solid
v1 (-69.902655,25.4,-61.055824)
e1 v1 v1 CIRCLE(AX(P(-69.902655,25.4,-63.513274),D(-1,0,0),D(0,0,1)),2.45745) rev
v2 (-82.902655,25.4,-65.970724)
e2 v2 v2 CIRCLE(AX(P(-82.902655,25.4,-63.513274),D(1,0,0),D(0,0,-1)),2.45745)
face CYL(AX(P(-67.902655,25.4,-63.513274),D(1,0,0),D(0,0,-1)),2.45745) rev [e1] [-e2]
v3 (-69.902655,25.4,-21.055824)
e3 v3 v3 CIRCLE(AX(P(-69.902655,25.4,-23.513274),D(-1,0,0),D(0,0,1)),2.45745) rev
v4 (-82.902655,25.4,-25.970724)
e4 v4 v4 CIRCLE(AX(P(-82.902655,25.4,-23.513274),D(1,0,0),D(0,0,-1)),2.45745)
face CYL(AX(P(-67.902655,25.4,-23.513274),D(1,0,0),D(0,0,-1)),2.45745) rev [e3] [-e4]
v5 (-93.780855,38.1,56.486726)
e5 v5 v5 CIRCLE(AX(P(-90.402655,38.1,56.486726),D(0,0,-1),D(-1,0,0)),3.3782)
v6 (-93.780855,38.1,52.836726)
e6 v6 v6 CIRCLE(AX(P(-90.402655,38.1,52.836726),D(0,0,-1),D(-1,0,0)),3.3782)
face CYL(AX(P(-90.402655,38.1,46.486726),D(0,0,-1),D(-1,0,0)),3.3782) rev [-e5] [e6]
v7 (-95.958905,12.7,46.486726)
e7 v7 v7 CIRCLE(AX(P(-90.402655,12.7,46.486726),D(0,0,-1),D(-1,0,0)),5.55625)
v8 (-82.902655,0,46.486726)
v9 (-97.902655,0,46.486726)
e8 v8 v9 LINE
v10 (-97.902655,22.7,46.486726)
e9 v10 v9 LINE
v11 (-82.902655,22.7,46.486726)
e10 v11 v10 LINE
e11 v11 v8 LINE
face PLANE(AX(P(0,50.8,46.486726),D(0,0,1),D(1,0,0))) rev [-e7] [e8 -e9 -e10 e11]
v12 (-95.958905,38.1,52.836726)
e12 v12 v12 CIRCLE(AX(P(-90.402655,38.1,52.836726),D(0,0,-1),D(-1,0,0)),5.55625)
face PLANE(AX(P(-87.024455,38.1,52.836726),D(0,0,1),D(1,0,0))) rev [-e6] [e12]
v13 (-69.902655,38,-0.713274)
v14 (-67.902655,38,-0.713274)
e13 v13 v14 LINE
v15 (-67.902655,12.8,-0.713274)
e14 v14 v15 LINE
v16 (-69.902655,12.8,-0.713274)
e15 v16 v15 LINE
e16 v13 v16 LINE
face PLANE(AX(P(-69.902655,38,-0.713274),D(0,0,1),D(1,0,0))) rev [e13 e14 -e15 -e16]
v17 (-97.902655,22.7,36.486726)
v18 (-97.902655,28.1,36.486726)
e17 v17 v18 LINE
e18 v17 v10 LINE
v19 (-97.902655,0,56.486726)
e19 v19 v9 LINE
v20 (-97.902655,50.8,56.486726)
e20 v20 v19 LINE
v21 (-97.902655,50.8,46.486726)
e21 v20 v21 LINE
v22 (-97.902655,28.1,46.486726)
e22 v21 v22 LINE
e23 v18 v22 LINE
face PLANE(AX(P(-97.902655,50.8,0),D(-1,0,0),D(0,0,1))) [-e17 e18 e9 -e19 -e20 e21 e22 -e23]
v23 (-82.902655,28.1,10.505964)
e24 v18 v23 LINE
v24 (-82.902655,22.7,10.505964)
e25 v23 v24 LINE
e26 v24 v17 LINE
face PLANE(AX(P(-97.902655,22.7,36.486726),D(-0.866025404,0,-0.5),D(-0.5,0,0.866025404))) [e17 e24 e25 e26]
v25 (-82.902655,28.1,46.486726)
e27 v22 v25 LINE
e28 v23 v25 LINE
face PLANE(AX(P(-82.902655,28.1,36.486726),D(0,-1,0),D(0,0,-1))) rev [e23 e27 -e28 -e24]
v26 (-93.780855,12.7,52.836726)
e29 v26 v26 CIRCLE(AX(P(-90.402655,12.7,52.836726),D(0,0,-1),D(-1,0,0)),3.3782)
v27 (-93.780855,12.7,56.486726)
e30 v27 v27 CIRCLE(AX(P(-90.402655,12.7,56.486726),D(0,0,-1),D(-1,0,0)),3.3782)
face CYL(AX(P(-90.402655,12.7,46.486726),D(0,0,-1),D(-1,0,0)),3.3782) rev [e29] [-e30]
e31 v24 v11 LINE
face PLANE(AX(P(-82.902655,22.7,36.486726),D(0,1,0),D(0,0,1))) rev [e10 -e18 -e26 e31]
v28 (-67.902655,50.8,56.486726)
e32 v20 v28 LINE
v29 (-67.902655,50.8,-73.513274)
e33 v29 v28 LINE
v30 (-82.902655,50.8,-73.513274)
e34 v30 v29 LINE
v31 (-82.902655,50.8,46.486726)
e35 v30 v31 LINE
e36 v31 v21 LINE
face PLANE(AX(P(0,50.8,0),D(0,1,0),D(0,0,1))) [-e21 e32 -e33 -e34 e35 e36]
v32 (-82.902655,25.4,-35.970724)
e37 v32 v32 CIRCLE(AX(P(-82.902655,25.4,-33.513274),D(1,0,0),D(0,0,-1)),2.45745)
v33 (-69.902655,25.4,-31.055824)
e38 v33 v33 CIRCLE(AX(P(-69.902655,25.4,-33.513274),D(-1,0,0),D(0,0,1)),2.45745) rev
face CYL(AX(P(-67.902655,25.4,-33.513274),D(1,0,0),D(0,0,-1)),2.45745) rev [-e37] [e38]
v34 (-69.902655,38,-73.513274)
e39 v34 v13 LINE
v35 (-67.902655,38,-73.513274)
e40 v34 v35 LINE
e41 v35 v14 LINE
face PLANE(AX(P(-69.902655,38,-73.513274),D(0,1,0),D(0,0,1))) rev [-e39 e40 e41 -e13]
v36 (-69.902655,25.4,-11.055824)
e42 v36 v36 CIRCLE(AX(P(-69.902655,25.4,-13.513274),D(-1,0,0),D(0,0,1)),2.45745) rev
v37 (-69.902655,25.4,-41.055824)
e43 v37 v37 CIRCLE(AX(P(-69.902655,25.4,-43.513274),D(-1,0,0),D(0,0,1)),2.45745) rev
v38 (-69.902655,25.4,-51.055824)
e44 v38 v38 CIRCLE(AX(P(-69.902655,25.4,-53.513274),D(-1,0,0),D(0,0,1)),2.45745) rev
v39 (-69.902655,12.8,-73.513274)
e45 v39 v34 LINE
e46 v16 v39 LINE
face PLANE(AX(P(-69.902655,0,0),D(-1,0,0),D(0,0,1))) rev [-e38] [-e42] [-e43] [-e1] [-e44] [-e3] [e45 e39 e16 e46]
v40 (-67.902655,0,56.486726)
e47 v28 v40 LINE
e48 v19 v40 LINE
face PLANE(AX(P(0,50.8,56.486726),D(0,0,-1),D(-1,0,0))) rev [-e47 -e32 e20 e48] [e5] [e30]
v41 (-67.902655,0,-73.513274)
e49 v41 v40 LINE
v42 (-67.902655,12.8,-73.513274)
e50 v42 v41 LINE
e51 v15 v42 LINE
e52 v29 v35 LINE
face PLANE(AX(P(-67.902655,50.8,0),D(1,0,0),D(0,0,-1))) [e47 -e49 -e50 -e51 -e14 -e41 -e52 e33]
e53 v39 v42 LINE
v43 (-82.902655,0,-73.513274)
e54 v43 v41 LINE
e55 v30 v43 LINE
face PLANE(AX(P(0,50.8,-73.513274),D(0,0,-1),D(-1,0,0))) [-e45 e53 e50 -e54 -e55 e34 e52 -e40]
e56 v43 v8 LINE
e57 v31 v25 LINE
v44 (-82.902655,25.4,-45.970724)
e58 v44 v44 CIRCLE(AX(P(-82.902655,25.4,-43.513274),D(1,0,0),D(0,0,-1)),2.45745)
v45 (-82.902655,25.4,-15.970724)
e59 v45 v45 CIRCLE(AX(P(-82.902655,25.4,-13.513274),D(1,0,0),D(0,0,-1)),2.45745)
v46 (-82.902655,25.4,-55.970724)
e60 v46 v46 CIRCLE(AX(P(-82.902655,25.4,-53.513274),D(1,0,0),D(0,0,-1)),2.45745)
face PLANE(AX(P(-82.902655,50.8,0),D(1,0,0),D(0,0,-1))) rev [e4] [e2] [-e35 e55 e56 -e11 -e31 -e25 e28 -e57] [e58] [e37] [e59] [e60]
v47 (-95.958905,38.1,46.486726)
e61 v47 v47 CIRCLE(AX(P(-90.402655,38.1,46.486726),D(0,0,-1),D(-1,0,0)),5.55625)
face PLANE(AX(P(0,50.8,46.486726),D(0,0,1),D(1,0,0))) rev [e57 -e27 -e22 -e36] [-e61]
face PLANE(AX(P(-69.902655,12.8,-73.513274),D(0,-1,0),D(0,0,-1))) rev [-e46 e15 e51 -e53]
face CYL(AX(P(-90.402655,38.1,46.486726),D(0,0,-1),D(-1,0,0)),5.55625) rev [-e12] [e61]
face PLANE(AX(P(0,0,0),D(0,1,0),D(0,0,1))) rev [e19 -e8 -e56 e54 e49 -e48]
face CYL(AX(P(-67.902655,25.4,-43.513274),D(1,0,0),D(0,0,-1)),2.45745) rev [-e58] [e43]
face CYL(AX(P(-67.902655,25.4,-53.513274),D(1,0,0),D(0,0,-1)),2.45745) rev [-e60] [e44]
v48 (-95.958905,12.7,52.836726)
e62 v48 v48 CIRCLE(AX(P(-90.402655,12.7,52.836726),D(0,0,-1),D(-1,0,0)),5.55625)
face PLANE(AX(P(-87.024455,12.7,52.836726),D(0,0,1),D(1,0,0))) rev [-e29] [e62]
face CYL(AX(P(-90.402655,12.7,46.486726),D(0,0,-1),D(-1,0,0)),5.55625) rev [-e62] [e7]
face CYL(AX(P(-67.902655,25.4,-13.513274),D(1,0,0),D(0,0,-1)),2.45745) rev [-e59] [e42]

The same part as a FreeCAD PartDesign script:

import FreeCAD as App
import Part
import Sketcher

V = App.Vector
Q = App.Units.Quantity


def faces_at(feature, points):
    """Names of the faces that lie closest to the given points."""
    faces = feature.Shape.Faces
    near = lambda p: min(range(len(faces)), key=lambda i: faces[i].distToShape(Part.Vertex(*p))[0])
    return sorted({f"Face{near(p) + 1}" for p in points})


def add_polygon(sketch, points):
    """Adds a closed chain of lines whose ends are joined by coincident constraints."""
    first, n = sketch.GeometryCount, len(points)
    for a, b in zip(points, points[1:] + points[:1]):
        sketch.addGeometry(Part.LineSegment(App.Vector(*a, 0), App.Vector(*b, 0)), False)
    for i in range(n):
        sketch.addConstraint(Sketcher.Constraint("Coincident", first + i, 2, first + (i + 1) % n, 1))

doc = App.newDocument("Part")
body = doc.addObject("PartDesign::Body", "Body")

# Sketch on XZ plane
sketch1 = body.newObject("Sketcher::SketchObject", "Sketch")
sketch1.AttachmentSupport = (doc.getObject("XZ_Plane"), [""])
sketch1.MapMode = "FlatFace"
add_polygon(sketch1, [(-83, -74), (-83, 46), (-98, 46), (-98, 56), (-68, 56), (-68, -74)])  # lines 0-5
sketch1.addConstraint([
    Sketcher.Constraint("Vertical", 0),
    Sketcher.Constraint("Horizontal", 1),
    Sketcher.Constraint("Vertical", 2),
    Sketcher.Constraint("Horizontal", 3),
    Sketcher.Constraint("Vertical", 4),
    Sketcher.Constraint("Horizontal", 5),
    Sketcher.Constraint("Equal", 1, 5),
    Sketcher.Constraint("DistanceX", 1, 2, 1, 1, Q("15 mm")),
    Sketcher.Constraint("DistanceY", 0, 1, 0, 2, Q("120 mm")),
    Sketcher.Constraint("DistanceY", 2, 1, 2, 2, Q("10 mm")),
    Sketcher.Constraint("DistanceX", 0, 2, -1, 1, Q("82.902655 mm")),
    Sketcher.Constraint("DistanceY", -1, 1, 0, 2, Q("46.486726 mm")),
])
pad1 = body.newObject("PartDesign::Pad", "Pad")
pad1.Profile = sketch1
pad1.Length = 50.8
pad1.Reversed = True

# Sketch on XY plane
sketch2 = body.newObject("Sketcher::SketchObject", "Sketch001")
sketch2.AttachmentSupport = (doc.getObject("XY_Plane"), [""])
sketch2.MapMode = "FlatFace"
sketch2.AttachmentOffset = App.Placement(V(0, 0, 46.486726), App.Rotation())
sketch2.addGeometry([
    Part.Circle(V(-90.4, 12.7, 0), V(0, 0, 1), 3.4),
    Part.Circle(V(-90.4, 38.1, 0), V(0, 0, 1), 3.4),
], False)
sketch2.addConstraint([
    Sketcher.Constraint("Equal", 0, 1),
    Sketcher.Constraint("Vertical", 0, 3, 1, 3),
    Sketcher.Constraint("Diameter", 0, Q("6.7564 mm")),
    Sketcher.Constraint("DistanceY", -1, 1, 0, 3, Q("12.7 mm")),
    Sketcher.Constraint("DistanceY", -1, 1, 1, 3, Q("38.1 mm")),
    Sketcher.Constraint("DistanceX", 0, 3, -1, 1, Q("90.402655 mm")),
])
doc.recompute()
hole = body.newObject("PartDesign::Hole", "Hole")
hole.Profile = sketch2
hole.ThreadType = "None"
hole.Diameter = 6.7564
hole.DepthType = "ThroughAll"
hole.HoleCutType = "Counterbore"
hole.HoleCutDiameter = 11.1125
hole.HoleCutDepth = 6.35
hole.Reversed = True

# Sketch on YZ plane
sketch3 = body.newObject("Sketcher::SketchObject", "Sketch002")
sketch3.AttachmentSupport = (doc.getObject("YZ_Plane"), [""])
sketch3.MapMode = "FlatFace"
sketch3.AttachmentOffset = App.Placement(V(0, 0, -67.902655), App.Rotation())
sketch3.addGeometry([
    Part.Circle(V(25.4, -63.5, 0), V(0, 0, 1), 2.5),
    Part.Circle(V(25.4, -53.5, 0), V(0, 0, 1), 2.5),
], False)
sketch3.addConstraint([
    Sketcher.Constraint("Equal", 0, 1),
    Sketcher.Constraint("Vertical", 0, 3, 1, 3),
    Sketcher.Constraint("DistanceY", 0, 3, 1, 3, Q("10 mm")),
    Sketcher.Constraint("Diameter", 0, Q("4.9149 mm")),
    Sketcher.Constraint("DistanceX", -1, 1, 0, 3, Q("25.4 mm")),
    Sketcher.Constraint("DistanceY", 0, 3, -1, 1, Q("63.513274 mm")),
])
doc.recompute()
hole2 = body.newObject("PartDesign::Hole", "Hole001")
hole2.Profile = sketch3
hole2.ThreadType = "None"
hole2.Diameter = 4.9149
hole2.DepthType = "ThroughAll"
doc.recompute()

linearpattern = body.newObject("PartDesign::LinearPattern", "LinearPattern")
linearpattern.Originals = [hole2]
linearpattern.Direction = (doc.getObject("Z_Axis"), [""])
linearpattern.Mode = "offset"
linearpattern.Offset = 20
linearpattern.Occurrences = 3
body.Tip = linearpattern

# Sketch on YZ plane
sketch4 = body.newObject("Sketcher::SketchObject", "Sketch003")
sketch4.AttachmentSupport = (doc.getObject("YZ_Plane"), [""])
sketch4.MapMode = "FlatFace"
sketch4.AttachmentOffset = App.Placement(V(0, 0, -67.902655), App.Rotation())
add_polygon(sketch4, [(38, -1), (13, -1), (13, -74), (38, -74)])  # lines 0-3
sketch4.addConstraint([
    Sketcher.Constraint("Horizontal", 0),
    Sketcher.Constraint("Vertical", 1),
    Sketcher.Constraint("Horizontal", 2),
    Sketcher.Constraint("Vertical", 3),
    Sketcher.Constraint("DistanceX", 0, 2, 0, 1, Q("25.2 mm")),
    Sketcher.Constraint("DistanceY", 1, 2, 1, 1, Q("72.8 mm")),
    Sketcher.Constraint("DistanceX", -1, 1, 2, 2, Q("38 mm")),
    Sketcher.Constraint("DistanceY", 0, 2, -1, 1, Q("0.713274 mm")),
])
pocket1 = body.newObject("PartDesign::Pocket", "Pocket")
pocket1.Profile = sketch4
pocket1.Length = 2

# Sketch on XY plane
sketch5 = body.newObject("Sketcher::SketchObject", "Sketch004")
sketch5.AttachmentSupport = (doc.getObject("XY_Plane"), [""])
sketch5.MapMode = "FlatFace"
sketch5.AttachmentOffset = App.Placement(V(0, 0, 46.486726), App.Rotation())
add_polygon(sketch5, [(-83, 28), (-83, 23), (-98, 23), (-98, 28)])  # lines 0-3
sketch5.addConstraint([
    Sketcher.Constraint("Vertical", 0),
    Sketcher.Constraint("Horizontal", 1),
    Sketcher.Constraint("Vertical", 2),
    Sketcher.Constraint("Horizontal", 3),
    Sketcher.Constraint("DistanceX", 1, 2, 1, 1, Q("15 mm")),
    Sketcher.Constraint("DistanceY", 0, 2, 0, 1, Q("5.4 mm")),
    Sketcher.Constraint("DistanceY", -1, 1, 0, 2, Q("22.7 mm")),
    Sketcher.Constraint("DistanceX", 0, 2, -1, 1, Q("82.902655 mm")),
])
pad2 = body.newObject("PartDesign::Pad", "Pad001")
pad2.Profile = sketch5
pad2.Length = 10
pad2.Reversed = True
doc.recompute()

datumplane = body.newObject("PartDesign::Plane", "DatumPlane")
datumplane.AttachmentSupport = (doc.getObject("YZ_Plane"), [""])
datumplane.MapMode = "FlatFace"
datumplane.AttachmentOffset = App.Placement(V(0, 0, -97.902655), App.Rotation())
draft = body.newObject("PartDesign::Draft", "Draft")
draft.Base = (pad2, faces_at(pad2, [(-90.403, 25.4, 36.487)]))
draft.NeutralPlane = (datumplane, [""])
draft.Angle = 60
draft.Reversed = True

doc.recompute()
